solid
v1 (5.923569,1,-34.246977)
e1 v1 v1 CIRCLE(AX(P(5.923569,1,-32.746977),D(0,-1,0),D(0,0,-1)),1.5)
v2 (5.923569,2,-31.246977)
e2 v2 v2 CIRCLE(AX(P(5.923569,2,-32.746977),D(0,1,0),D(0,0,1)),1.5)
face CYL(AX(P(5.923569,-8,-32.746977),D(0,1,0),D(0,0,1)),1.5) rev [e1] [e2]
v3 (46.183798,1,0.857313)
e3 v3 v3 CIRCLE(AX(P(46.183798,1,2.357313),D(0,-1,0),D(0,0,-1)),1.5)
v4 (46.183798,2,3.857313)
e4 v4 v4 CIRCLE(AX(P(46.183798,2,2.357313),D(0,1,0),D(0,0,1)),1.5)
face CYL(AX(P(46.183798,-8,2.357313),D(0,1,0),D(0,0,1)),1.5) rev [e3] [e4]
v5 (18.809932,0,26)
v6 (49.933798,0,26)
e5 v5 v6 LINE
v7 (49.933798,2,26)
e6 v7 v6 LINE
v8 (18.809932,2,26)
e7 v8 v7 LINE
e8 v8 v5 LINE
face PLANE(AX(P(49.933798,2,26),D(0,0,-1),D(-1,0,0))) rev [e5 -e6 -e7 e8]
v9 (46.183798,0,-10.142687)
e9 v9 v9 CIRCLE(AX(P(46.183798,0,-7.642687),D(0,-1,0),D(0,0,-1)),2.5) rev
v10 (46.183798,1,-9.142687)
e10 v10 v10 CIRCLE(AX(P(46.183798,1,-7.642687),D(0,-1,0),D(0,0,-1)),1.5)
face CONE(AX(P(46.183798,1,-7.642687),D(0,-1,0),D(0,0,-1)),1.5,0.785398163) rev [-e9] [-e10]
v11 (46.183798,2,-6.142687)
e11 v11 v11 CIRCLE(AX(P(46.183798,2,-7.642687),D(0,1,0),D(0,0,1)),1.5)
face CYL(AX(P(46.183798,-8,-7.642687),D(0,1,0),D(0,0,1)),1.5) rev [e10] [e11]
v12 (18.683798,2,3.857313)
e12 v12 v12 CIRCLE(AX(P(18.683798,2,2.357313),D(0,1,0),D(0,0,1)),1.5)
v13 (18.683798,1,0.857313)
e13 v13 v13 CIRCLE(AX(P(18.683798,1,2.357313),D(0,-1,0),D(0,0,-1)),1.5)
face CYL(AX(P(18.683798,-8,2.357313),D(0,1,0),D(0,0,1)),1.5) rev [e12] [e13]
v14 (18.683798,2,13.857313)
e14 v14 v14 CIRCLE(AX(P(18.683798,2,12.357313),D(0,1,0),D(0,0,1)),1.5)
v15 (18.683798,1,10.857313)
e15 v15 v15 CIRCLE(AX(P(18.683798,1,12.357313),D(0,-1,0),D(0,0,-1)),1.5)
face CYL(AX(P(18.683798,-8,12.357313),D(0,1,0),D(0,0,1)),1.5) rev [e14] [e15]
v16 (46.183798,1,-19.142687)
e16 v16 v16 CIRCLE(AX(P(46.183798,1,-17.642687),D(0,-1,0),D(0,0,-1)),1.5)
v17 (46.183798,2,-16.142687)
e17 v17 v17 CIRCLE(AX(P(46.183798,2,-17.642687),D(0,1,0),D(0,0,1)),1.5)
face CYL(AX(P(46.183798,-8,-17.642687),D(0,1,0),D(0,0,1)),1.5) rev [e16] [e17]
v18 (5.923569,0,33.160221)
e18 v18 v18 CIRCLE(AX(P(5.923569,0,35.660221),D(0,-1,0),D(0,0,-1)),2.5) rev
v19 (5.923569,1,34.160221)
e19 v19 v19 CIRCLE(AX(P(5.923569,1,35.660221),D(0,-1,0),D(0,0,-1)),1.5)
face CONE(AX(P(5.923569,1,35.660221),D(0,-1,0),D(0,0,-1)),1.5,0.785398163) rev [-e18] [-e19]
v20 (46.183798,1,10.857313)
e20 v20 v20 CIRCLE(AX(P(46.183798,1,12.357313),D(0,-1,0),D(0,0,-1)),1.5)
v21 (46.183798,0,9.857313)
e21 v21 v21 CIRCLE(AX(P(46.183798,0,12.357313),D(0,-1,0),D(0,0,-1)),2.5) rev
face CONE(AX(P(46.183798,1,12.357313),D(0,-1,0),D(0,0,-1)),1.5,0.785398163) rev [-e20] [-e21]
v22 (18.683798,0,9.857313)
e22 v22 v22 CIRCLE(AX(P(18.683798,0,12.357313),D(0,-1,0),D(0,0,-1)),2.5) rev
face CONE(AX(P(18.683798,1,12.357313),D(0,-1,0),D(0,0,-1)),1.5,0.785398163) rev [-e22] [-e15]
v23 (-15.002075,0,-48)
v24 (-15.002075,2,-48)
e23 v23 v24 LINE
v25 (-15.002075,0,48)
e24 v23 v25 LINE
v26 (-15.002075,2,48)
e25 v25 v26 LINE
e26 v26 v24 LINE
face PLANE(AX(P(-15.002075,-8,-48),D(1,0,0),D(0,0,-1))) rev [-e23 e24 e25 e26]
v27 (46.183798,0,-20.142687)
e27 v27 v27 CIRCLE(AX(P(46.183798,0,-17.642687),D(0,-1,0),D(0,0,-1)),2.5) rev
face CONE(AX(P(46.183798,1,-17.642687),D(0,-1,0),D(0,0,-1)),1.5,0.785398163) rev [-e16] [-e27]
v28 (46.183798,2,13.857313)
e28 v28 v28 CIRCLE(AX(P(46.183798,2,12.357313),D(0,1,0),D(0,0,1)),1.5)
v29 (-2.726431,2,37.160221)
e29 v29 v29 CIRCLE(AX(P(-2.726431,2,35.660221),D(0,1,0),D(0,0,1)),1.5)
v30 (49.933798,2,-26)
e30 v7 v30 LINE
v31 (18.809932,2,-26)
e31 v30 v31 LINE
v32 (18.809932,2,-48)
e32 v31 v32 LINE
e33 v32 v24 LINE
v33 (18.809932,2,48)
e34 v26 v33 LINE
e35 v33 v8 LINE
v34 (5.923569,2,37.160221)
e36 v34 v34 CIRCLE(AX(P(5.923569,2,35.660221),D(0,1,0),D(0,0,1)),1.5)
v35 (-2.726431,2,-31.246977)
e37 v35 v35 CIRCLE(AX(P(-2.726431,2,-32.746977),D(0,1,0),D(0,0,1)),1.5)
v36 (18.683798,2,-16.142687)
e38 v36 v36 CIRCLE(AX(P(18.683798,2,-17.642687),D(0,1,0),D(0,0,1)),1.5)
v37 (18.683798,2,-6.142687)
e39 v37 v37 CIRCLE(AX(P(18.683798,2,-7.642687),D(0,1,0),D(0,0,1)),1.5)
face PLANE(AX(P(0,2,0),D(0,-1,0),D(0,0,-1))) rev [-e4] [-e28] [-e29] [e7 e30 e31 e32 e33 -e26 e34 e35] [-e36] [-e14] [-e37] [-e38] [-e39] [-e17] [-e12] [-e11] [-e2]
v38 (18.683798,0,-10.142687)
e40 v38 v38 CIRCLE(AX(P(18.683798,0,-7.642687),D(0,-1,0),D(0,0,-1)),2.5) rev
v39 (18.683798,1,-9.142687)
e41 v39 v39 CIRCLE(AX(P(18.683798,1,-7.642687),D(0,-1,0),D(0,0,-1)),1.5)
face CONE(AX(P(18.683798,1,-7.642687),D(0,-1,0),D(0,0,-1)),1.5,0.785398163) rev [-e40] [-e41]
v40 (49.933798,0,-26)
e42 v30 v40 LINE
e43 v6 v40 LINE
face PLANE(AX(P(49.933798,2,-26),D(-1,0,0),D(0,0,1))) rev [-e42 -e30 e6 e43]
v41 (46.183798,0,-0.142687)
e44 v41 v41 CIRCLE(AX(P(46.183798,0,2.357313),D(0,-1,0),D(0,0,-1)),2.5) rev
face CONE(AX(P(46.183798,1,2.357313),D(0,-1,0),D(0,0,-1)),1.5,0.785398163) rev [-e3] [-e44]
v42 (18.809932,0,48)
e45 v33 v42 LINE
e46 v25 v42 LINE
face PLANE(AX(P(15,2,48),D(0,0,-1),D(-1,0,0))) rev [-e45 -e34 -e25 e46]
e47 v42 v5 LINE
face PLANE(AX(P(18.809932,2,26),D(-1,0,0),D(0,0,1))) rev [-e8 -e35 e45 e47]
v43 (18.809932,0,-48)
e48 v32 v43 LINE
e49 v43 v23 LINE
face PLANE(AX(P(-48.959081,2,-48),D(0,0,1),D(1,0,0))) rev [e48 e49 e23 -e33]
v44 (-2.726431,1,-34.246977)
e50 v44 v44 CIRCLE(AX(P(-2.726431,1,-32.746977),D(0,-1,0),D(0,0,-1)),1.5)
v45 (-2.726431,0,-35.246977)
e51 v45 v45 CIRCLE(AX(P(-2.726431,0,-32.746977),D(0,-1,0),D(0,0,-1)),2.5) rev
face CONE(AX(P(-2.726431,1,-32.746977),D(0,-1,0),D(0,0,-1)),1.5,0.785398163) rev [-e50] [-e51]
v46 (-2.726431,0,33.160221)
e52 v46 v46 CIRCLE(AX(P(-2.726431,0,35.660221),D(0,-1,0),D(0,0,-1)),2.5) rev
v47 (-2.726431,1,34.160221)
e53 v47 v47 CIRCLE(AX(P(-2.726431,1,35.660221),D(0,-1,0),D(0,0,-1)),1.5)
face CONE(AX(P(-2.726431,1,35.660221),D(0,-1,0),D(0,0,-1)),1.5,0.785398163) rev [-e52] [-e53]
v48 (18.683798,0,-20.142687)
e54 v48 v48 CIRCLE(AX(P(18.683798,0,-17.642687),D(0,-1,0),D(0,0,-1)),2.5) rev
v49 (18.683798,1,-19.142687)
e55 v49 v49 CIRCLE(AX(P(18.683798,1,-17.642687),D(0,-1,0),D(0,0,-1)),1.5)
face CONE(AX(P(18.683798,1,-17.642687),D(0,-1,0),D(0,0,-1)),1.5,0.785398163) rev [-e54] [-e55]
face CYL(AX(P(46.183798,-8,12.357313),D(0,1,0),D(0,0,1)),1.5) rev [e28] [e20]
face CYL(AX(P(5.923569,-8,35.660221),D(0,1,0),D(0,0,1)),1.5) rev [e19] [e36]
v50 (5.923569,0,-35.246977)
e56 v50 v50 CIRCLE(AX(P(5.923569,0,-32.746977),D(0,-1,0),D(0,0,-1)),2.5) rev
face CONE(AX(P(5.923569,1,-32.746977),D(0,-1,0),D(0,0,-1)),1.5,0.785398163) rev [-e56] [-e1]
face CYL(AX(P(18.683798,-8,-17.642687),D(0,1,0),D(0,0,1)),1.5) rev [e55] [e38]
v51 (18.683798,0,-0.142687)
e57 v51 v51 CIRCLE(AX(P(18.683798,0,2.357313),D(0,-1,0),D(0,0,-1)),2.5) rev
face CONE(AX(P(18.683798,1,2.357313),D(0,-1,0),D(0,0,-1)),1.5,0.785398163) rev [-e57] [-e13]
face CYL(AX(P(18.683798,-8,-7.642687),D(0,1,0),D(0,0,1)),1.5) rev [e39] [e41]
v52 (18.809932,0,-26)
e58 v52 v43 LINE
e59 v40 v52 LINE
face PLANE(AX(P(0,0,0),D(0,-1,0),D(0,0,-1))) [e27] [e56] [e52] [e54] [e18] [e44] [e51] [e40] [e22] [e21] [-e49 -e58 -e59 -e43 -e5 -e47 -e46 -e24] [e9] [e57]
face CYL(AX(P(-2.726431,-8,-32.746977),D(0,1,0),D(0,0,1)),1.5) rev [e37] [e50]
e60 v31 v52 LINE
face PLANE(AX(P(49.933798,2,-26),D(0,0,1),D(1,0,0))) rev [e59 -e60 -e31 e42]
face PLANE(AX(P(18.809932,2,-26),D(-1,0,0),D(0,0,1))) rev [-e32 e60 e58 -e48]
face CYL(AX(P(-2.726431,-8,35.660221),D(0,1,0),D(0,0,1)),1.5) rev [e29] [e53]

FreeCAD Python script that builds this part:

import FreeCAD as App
import Part
import Sketcher

V = App.Vector
Q = App.Units.Quantity


def edges_at(feature, points):
    """Names of the edges that pass closest to the given points."""
    edges = feature.Shape.Edges
    near = lambda p: min(range(len(edges)), key=lambda i: edges[i].distToShape(Part.Vertex(*p))[0])
    return sorted({f"Edge{near(p) + 1}" for p in points})


def add_polygon(sketch, points):
    """Adds a closed chain of lines whose ends are joined by coincident constraints."""
    first, n = sketch.GeometryCount, len(points)
    for a, b in zip(points, points[1:] + points[:1]):
        sketch.addGeometry(Part.LineSegment(App.Vector(*a, 0), App.Vector(*b, 0)), False)
    for i in range(n):
        sketch.addConstraint(Sketcher.Constraint("Coincident", first + i, 2, first + (i + 1) % n, 1))

doc = App.newDocument("Part")
body = doc.addObject("PartDesign::Body", "Body")

# Sketch on XZ plane
sketch1 = body.newObject("Sketcher::SketchObject", "Sketch")
sketch1.AttachmentSupport = (doc.getObject("XZ_Plane"), [""])
sketch1.MapMode = "FlatFace"
add_polygon(sketch1, [(50, -26), (19, -26), (19, -48), (-49, -48), (-49, 48), (19, 48), (19, 26), (50, 26)])  # lines 0-7
add_polygon(sketch1, [(-27, 37), (-45, 37), (-45, 25), (-27, 25)])  # lines 8-11
add_polygon(sketch1, [(-27, -25), (-45, -25), (-45, -37), (-27, -37)])  # lines 12-15
sketch1.addConstraint([
    Sketcher.Constraint("Horizontal", 0),
    Sketcher.Constraint("Vertical", 1),
    Sketcher.Constraint("Horizontal", 2),
    Sketcher.Constraint("Vertical", 3),
    Sketcher.Constraint("Horizontal", 4),
    Sketcher.Constraint("Vertical", 5),
    Sketcher.Constraint("Horizontal", 6),
    Sketcher.Constraint("Vertical", 7),
    Sketcher.Constraint("Horizontal", 8),
    Sketcher.Constraint("Vertical", 9),
    Sketcher.Constraint("Horizontal", 10),
    Sketcher.Constraint("Vertical", 11),
    Sketcher.Constraint("Horizontal", 12),
    Sketcher.Constraint("Vertical", 13),
    Sketcher.Constraint("Horizontal", 14),
    Sketcher.Constraint("Vertical", 15),
    Sketcher.Constraint("Symmetric", 1, 2, 4, 2, -1),
    Sketcher.Constraint("Symmetric", 9, 2, 12, 2, -1),
    Sketcher.Constraint("Symmetric", 11, 2, 14, 2, -1),
    Sketcher.Constraint("Equal", 1, 5),
    Sketcher.Constraint("DistanceY", 1, 2, 1, 1, Q("22 mm")),
    Sketcher.Constraint("DistanceY", 3, 1, 3, 2, Q("96 mm")),
    Sketcher.Constraint("DistanceX", 8, 2, 8, 1, Q("17.893001 mm")),
    Sketcher.Constraint("DistanceX", 0, 2, 0, 1, Q("31.123866 mm")),
    Sketcher.Constraint("DistanceX", 2, 2, 2, 1, Q("67.769014 mm")),
    Sketcher.Constraint("DistanceY", 9, 2, 9, 1, Q("11.620983 mm")),
    Sketcher.Constraint("DistanceX", 2, 2, -1, 1, Q("48.959081 mm")),
    Sketcher.Constraint("DistanceX", 8, 2, -1, 1, Q("45.265589 mm")),
    Sketcher.Constraint("DistanceY", 12, 2, 8, 2, Q("62.24003 mm")),
])
pad1 = body.newObject("PartDesign::Pad", "Pad")
pad1.Profile = sketch1
pad1.Length = 2
pad1.Reversed = True

# Sketch on XZ plane
sketch2 = body.newObject("Sketcher::SketchObject", "Sketch001")
sketch2.AttachmentSupport = (doc.getObject("XZ_Plane"), [""])
sketch2.MapMode = "FlatFace"
sketch2.AttachmentOffset = App.Placement(V(0, 0, -2), App.Rotation())
sketch2.addGeometry([
    Part.Circle(V(46.2, 12.4, 0), V(0, 0, 1), 1.5),  # 0
    Part.Circle(V(18.7, 12.4, 0), V(0, 0, 1), 1.5),  # 1
    Part.Circle(V(18.7, 2.4, 0), V(0, 0, 1), 1.5),  # 2
    Part.Circle(V(46.2, 2.4, 0), V(0, 0, 1), 1.5),  # 3
    Part.Circle(V(18.7, -7.6, 0), V(0, 0, 1), 1.5),  # 4
    Part.Circle(V(46.2, -7.6, 0), V(0, 0, 1), 1.5),  # 5
    Part.Circle(V(18.7, -17.6, 0), V(0, 0, 1), 1.5),  # 6
    Part.Circle(V(46.2, -17.6, 0), V(0, 0, 1), 1.5),  # 7
], False)
sketch2.addConstraint([
    Sketcher.Constraint("Equal", 0, 1),
    Sketcher.Constraint("Equal", 1, 2),
    Sketcher.Constraint("Equal", 2, 3),
    Sketcher.Constraint("Equal", 3, 4),
    Sketcher.Constraint("Equal", 4, 5),
    Sketcher.Constraint("Equal", 5, 6),
    Sketcher.Constraint("Equal", 6, 7),
    Sketcher.Constraint("Horizontal", 0, 3, 1, 3),
    Sketcher.Constraint("Horizontal", 2, 3, 3, 3),
    Sketcher.Constraint("Horizontal", 4, 3, 5, 3),
    Sketcher.Constraint("Horizontal", 6, 3, 7, 3),
    Sketcher.Constraint("Vertical", 1, 3, 2, 3),
    Sketcher.Constraint("Vertical", 0, 3, 3, 3),
    Sketcher.Constraint("Vertical", 2, 3, 4, 3),
    Sketcher.Constraint("Vertical", 3, 3, 5, 3),
    Sketcher.Constraint("Vertical", 4, 3, 6, 3),
    Sketcher.Constraint("Vertical", 5, 3, 7, 3),
    Sketcher.Constraint("Diameter", 0, Q("3 mm")),
    Sketcher.Constraint("DistanceY", 2, 3, 1, 3, Q("10 mm")),
    Sketcher.Constraint("DistanceY", 4, 3, 2, 3, Q("10 mm")),
    Sketcher.Constraint("DistanceY", 6, 3, 4, 3, Q("10 mm")),
    Sketcher.Constraint("DistanceX", 1, 3, 0, 3, Q("27.5 mm")),
    Sketcher.Constraint("DistanceX", -1, 1, 0, 3, Q("46.183798 mm")),
    Sketcher.Constraint("DistanceY", -1, 1, 0, 3, Q("12.357313 mm")),
])
pocket1 = body.newObject("PartDesign::Pocket", "Pocket")
pocket1.Profile = sketch2
pocket1.Length = 10
pocket1.Reversed = True
doc.recompute()

chamfer = body.newObject("PartDesign::Chamfer", "Chamfer")
chamfer.Base = (pocket1, edges_at(pocket1, [
    (46.184, 0, -9.143),
    (18.684, 0, 0.857),
    (46.184, 0, 0.857),
    (18.684, 0, 10.857),
    (18.684, 0, -19.143),
    (46.184, 0, -19.143),
    (18.684, 0, -9.143),
    (46.184, 0, 10.857),
]))
chamfer.Size = 1

# Sketch on XZ plane
sketch3 = body.newObject("Sketcher::SketchObject", "Sketch002")
sketch3.AttachmentSupport = (doc.getObject("XZ_Plane"), [""])
sketch3.MapMode = "FlatFace"
sketch3.AttachmentOffset = App.Placement(V(0, 0, -2), App.Rotation())
sketch3.addGeometry([
    Part.Circle(V(5.9, -32.7, 0), V(0, 0, 1), 1.5),
    Part.Circle(V(-2.7, -32.7, 0), V(0, 0, 1), 1.5),
    Part.Circle(V(-2.7, 35.7, 0), V(0, 0, 1), 1.5),
    Part.Circle(V(5.9, 35.7, 0), V(0, 0, 1), 1.5),
], False)
sketch3.addConstraint([
    Sketcher.Constraint("Equal", 0, 1),
    Sketcher.Constraint("Equal", 1, 2),
    Sketcher.Constraint("Equal", 2, 3),
    Sketcher.Constraint("Horizontal", 0, 3, 1, 3),
    Sketcher.Constraint("Horizontal", 2, 3, 3, 3),
    Sketcher.Constraint("Vertical", 1, 3, 2, 3),
    Sketcher.Constraint("Vertical", 0, 3, 3, 3),
    Sketcher.Constraint("Diameter", 0, Q("3 mm")),
    Sketcher.Constraint("DistanceX", 1, 3, 0, 3, Q("8.65 mm")),
    Sketcher.Constraint("DistanceX", -1, 1, 0, 3, Q("5.923569 mm")),
    Sketcher.Constraint("DistanceY", -1, 1, 2, 3, Q("35.660221 mm")),
    Sketcher.Constraint("DistanceY", 0, 3, -1, 1, Q("32.746977 mm")),
])
pocket2 = body.newObject("PartDesign::Pocket", "Pocket001")
pocket2.Profile = sketch3
pocket2.Length = 10
pocket2.Reversed = True

# Sketch on XZ plane
sketch4 = body.newObject("Sketcher::SketchObject", "Sketch003")
sketch4.AttachmentSupport = (doc.getObject("XZ_Plane"), [""])
sketch4.MapMode = "FlatFace"
sketch4.AttachmentOffset = App.Placement(V(0, 0, -2), App.Rotation())
add_polygon(sketch4, [(-49, -48), (-49, 48), (-15, 48), (-15, -48)])  # lines 0-3
sketch4.addConstraint([
    Sketcher.Constraint("Vertical", 0),
    Sketcher.Constraint("Horizontal", 1),
    Sketcher.Constraint("Vertical", 2),
    Sketcher.Constraint("Horizontal", 3),
    Sketcher.Constraint("DistanceY", 0, 1, 0, 2, Q("96 mm")),
    Sketcher.Constraint("DistanceY", -1, 1, 0, 2, Q("48 mm")),
    Sketcher.Constraint("DistanceX", 1, 1, 1, 2, Q("33.957006 mm")),
    Sketcher.Constraint("DistanceX", 0, 2, -1, 1, Q("48.959081 mm")),
])
pocket3 = body.newObject("PartDesign::Pocket", "Pocket002")
pocket3.Profile = sketch4
pocket3.Length = 10
pocket3.Reversed = True
doc.recompute()

chamfer2 = body.newObject("PartDesign::Chamfer", "Chamfer001")
chamfer2.Base = (pocket3, edges_at(pocket3, [
    (5.924, 0, 34.16),
    (-2.726, 0, 34.16),
    (-2.726, 0, -34.247),
    (5.924, 0, -34.247),
]))
chamfer2.Size = 1

doc.recompute()
